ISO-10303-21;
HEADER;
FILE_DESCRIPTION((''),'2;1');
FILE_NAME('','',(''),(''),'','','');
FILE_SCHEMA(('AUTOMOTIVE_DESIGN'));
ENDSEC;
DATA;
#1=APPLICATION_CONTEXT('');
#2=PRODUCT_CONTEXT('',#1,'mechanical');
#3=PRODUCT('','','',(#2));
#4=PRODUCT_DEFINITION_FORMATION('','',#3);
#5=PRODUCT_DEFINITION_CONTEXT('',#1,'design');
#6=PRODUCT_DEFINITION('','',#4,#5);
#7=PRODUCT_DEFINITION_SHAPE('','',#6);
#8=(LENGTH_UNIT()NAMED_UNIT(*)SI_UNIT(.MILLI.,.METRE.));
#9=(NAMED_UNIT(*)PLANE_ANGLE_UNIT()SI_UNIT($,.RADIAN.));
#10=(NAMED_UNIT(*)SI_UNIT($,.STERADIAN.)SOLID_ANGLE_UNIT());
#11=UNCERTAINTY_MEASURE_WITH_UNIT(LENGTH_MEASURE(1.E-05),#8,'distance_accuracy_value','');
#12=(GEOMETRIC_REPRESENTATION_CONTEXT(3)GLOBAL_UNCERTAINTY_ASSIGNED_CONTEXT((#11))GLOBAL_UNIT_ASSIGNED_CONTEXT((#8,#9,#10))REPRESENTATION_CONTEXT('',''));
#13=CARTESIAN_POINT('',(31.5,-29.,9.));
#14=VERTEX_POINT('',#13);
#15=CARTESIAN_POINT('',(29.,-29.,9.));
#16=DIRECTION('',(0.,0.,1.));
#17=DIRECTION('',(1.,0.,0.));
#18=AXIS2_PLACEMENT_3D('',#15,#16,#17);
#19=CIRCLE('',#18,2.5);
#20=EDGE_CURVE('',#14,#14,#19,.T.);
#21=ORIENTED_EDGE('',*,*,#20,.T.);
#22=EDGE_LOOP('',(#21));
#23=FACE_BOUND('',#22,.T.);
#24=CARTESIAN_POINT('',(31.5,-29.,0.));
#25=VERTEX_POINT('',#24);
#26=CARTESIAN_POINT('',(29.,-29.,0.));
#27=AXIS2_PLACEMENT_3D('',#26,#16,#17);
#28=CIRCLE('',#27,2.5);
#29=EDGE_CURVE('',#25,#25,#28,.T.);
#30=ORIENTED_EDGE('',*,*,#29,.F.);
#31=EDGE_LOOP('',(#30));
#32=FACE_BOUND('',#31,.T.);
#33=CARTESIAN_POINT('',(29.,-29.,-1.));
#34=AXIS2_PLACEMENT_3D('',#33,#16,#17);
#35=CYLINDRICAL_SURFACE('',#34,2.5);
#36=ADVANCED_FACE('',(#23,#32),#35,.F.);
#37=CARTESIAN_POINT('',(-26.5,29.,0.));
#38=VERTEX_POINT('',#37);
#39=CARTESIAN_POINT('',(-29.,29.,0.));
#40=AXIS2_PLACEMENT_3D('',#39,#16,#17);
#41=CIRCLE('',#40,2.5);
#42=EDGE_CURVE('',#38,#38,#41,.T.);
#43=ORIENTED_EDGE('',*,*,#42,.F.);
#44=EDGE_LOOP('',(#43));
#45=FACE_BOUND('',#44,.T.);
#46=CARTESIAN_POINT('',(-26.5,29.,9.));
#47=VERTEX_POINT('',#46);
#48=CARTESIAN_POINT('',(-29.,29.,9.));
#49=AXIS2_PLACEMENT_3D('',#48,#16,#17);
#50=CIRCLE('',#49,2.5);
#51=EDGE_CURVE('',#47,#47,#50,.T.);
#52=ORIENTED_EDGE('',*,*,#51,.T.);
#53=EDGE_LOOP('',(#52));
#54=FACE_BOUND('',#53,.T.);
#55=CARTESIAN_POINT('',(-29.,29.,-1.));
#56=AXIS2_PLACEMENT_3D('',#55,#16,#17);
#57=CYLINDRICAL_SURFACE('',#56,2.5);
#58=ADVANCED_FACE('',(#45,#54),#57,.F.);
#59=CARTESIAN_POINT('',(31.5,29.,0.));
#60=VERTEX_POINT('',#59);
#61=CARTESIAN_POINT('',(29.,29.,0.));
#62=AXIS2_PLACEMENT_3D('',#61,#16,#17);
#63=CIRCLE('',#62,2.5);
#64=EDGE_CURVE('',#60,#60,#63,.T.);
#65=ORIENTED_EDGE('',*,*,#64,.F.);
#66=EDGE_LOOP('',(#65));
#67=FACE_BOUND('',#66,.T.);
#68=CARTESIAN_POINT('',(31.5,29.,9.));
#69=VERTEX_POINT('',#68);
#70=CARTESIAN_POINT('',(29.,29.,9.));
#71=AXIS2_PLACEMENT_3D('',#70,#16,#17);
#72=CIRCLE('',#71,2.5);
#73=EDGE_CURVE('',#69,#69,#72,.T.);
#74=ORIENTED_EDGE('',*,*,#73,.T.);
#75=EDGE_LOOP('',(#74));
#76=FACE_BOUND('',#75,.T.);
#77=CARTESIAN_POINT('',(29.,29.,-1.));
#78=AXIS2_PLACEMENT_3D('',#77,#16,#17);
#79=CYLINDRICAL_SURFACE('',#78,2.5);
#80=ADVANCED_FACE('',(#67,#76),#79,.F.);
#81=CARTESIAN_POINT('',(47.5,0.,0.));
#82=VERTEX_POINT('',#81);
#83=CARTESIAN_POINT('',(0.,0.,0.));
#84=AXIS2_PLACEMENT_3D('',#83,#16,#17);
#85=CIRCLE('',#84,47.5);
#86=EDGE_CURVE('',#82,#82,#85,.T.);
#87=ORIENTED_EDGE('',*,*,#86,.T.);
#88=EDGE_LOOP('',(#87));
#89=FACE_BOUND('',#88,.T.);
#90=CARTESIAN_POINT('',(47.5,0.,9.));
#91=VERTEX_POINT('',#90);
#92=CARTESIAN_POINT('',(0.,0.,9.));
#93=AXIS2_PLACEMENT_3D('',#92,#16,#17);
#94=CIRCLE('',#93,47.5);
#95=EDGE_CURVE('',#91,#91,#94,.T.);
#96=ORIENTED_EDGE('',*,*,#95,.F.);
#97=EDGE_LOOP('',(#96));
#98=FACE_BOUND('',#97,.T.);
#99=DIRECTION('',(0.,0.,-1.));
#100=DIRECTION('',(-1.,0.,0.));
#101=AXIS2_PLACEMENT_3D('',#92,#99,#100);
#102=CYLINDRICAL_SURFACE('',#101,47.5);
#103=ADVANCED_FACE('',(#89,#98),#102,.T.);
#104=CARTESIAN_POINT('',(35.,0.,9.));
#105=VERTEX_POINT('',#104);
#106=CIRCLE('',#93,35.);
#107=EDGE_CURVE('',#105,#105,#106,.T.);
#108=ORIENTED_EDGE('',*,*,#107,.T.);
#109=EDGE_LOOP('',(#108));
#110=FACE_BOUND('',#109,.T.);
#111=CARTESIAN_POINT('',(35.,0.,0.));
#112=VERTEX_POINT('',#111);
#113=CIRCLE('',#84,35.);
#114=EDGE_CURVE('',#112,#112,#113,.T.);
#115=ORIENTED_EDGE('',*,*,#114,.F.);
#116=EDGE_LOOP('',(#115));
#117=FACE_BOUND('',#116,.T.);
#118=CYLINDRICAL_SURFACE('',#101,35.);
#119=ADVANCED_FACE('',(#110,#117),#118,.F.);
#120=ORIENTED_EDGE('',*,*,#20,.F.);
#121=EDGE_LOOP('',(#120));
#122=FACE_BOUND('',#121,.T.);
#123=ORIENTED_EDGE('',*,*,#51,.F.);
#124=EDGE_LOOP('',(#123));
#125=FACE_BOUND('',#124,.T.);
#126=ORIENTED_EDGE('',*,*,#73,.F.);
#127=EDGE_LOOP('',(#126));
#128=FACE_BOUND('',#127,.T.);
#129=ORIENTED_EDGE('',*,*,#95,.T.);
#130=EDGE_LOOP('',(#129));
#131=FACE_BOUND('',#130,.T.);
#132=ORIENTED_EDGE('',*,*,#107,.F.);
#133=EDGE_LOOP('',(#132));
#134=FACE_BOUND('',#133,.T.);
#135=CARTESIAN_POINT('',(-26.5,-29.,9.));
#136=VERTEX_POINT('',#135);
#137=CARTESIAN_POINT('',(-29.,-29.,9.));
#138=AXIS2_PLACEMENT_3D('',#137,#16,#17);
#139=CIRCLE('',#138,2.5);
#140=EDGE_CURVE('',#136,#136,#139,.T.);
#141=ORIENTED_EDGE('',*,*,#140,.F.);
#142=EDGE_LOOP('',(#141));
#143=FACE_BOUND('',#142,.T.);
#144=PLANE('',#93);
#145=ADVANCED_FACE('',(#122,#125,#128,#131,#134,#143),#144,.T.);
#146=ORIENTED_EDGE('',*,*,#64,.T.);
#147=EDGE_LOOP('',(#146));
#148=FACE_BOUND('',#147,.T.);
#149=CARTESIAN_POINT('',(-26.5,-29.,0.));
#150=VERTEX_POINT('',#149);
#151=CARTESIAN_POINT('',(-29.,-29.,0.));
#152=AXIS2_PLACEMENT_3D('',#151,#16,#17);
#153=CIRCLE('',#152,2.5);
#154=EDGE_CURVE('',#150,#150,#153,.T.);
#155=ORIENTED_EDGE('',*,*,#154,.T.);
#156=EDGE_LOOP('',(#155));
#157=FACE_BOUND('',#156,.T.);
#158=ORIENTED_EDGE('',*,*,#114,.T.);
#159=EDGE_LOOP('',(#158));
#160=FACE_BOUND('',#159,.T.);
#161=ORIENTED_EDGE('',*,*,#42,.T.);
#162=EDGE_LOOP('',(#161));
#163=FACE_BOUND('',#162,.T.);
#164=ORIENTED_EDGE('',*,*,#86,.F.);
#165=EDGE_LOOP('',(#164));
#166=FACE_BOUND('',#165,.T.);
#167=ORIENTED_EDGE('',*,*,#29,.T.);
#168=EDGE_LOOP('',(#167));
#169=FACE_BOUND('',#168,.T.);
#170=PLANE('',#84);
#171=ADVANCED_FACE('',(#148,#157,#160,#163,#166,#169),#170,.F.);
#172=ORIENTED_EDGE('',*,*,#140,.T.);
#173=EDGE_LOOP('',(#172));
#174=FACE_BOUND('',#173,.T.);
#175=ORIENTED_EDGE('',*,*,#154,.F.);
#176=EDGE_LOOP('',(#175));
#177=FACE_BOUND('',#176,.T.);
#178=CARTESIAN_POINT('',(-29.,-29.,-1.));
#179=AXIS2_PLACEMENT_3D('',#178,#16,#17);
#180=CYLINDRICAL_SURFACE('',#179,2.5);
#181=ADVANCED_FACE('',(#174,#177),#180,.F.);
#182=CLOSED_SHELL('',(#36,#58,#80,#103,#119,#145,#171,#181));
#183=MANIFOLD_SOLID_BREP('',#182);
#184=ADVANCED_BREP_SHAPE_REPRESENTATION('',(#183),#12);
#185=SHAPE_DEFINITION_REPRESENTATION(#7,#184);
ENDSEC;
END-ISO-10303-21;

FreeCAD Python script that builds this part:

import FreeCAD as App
import Part
import Sketcher
from FreeCAD import Vector
Q = App.Units.Quantity

doc = App.newDocument("Part")
body = doc.addObject("PartDesign::Body", "Body")

# Sketch on XY plane
sketch1 = doc.addObject("Sketcher::SketchObject", "Sketch")
body.addObject(sketch1)
sketch1.AttachmentSupport = (doc.XY_Plane, [""])
sketch1.MapMode = "FlatFace"
sketch1.addGeometry([
    Part.Circle(Vector(0, 0, 0), Vector(0, 0, 1), 48),
    Part.Circle(Vector(0, 0, 0), Vector(0, 0, 1), 35),
], False)
sketch1.addConstraint([
    Sketcher.Constraint("Coincident", 0, 3, -1, 1),
    Sketcher.Constraint("Coincident", 1, 3, -1, 1),
    Sketcher.Constraint("Diameter", 0, Q("95 mm")),
    Sketcher.Constraint("Diameter", 1, Q("70 mm")),
])
pad1 = doc.addObject("PartDesign::Pad", "Pad")
body.addObject(pad1)
pad1.Profile = sketch1
pad1.Length = 9

# Sketch on XY plane
sketch2 = doc.addObject("Sketcher::SketchObject", "Sketch001")
body.addObject(sketch2)
sketch2.AttachmentSupport = (doc.XY_Plane, [""])
sketch2.MapMode = "FlatFace"
sketch2.AttachmentOffset = App.Placement(Vector(0, 0, 9), App.Rotation())
sketch2.addGeometry([
    Part.Circle(Vector(29, 29, 0), Vector(0, 0, 1), 2.5),
    Part.Circle(Vector(29, -29, 0), Vector(0, 0, 1), 2.5),
    Part.Circle(Vector(-29, -29, 0), Vector(0, 0, 1), 2.5),
    Part.Circle(Vector(-29, 29, 0), Vector(0, 0, 1), 2.5),
], False)
sketch2.addConstraint([
    Sketcher.Constraint("Equal", 0, 1),
    Sketcher.Constraint("Equal", 1, 2),
    Sketcher.Constraint("Equal", 2, 3),
    Sketcher.Constraint("Symmetric", 0, 3, 2, 3, -1, 1),
    Sketcher.Constraint("Symmetric", 1, 3, 3, 3, -1, 1),
    Sketcher.Constraint("Symmetric", 1, 3, 2, 3, -2),
    Sketcher.Constraint("Diameter", 0, Q("5 mm")),
    Sketcher.Constraint("DistanceX", -1, 1, 0, 3, Q("29 mm")),
    Sketcher.Constraint("DistanceY", -1, 1, 0, 3, Q("29 mm")),
])
pocket1 = doc.addObject("PartDesign::Pocket", "Pocket")
body.addObject(pocket1)
pocket1.Profile = sketch2
pocket1.Length = 10

doc.recompute()
